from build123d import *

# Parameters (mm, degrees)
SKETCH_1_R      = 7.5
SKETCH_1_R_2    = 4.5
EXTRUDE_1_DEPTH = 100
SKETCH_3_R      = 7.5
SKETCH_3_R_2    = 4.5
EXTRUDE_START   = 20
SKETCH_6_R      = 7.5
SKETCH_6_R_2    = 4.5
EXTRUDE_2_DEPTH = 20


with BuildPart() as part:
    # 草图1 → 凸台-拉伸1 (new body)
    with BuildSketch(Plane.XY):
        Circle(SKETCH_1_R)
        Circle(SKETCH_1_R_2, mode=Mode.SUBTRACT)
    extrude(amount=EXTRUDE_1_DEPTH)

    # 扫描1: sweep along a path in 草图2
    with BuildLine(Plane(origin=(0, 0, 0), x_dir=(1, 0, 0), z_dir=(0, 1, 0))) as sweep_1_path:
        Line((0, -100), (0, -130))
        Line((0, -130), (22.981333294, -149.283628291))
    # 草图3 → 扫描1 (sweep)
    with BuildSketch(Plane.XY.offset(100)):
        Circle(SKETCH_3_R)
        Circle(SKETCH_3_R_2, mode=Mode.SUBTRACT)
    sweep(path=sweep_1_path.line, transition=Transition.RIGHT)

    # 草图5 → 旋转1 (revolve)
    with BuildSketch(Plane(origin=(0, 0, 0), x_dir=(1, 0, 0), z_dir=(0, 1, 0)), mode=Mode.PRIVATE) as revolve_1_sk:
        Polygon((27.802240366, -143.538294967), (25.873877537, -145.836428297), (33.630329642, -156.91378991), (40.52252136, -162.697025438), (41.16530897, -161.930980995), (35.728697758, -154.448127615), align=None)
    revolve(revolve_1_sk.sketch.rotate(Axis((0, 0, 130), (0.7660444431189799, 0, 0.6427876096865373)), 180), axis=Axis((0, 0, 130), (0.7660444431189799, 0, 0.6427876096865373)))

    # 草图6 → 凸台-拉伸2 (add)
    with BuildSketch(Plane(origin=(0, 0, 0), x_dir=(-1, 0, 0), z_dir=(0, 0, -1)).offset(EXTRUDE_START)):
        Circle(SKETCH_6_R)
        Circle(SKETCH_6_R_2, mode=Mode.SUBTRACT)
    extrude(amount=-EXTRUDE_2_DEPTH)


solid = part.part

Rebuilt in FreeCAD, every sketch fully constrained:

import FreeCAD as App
import Part
import Sketcher

V = App.Vector
Q = App.Units.Quantity


def add_polygon(sketch, points):
    """Adds a closed chain of lines whose ends are joined by coincident constraints."""
    first, n = sketch.GeometryCount, len(points)
    for a, b in zip(points, points[1:] + points[:1]):
        sketch.addGeometry(Part.LineSegment(App.Vector(*a, 0), App.Vector(*b, 0)), False)
    for i in range(n):
        sketch.addConstraint(Sketcher.Constraint("Coincident", first + i, 2, first + (i + 1) % n, 1))

doc = App.newDocument("Part")
body = doc.addObject("PartDesign::Body", "Body")

# Sketch on XY plane
sketch1 = body.newObject("Sketcher::SketchObject", "Sketch")
sketch1.AttachmentSupport = (doc.getObject("XY_Plane"), [""])
sketch1.MapMode = "FlatFace"
sketch1.addGeometry(Part.Circle(V(0, 0, 0), V(0, 0, 1), 7.5), False)
sketch1.addGeometry(Part.Circle(V(0, 0, 0), V(0, 0, 1), 4.5), False)
sketch1.addConstraint(Sketcher.Constraint("Coincident", 0, 3, -1, 1))
sketch1.addConstraint(Sketcher.Constraint("Coincident", 1, 3, -1, 1))
sketch1.addConstraint(Sketcher.Constraint("Diameter", 0, 15.0))
sketch1.addConstraint(Sketcher.Constraint("Diameter", 1, 9.0))
pad1 = body.newObject("PartDesign::Pad", "Pad")
pad1.Profile = sketch1
pad1.Length = 100

# Sketch on XY plane
sketch2 = body.newObject("Sketcher::SketchObject", "Sketch001")
sketch2.AttachmentSupport = (doc.getObject("XY_Plane"), [""])
sketch2.MapMode = "FlatFace"
sketch2.AttachmentOffset = App.Placement(V(0, 0, 100), App.Rotation())
sketch2.addGeometry(Part.Circle(V(0, 0, 0), V(0, 0, 1), 7.5), False)
sketch2.addGeometry(Part.Circle(V(0, 0, 0), V(0, 0, 1), 4.5), False)
sketch2.addConstraint(Sketcher.Constraint("Coincident", 0, 3, -1, 1))
sketch2.addConstraint(Sketcher.Constraint("Coincident", 1, 3, -1, 1))
sketch2.addConstraint(Sketcher.Constraint("Diameter", 0, 15.0))
sketch2.addConstraint(Sketcher.Constraint("Diameter", 1, 9.0))

# Sketch on XZ plane
sketch3 = body.newObject("Sketcher::SketchObject", "Sketch002")
sketch3.AttachmentSupport = (doc.getObject("XZ_Plane"), [""])
sketch3.MapMode = "FlatFace"
sketch3.addGeometry(Part.LineSegment(V(0, 100, 0), V(0, 130, 0)), False)
sketch3.addGeometry(Part.LineSegment(V(0, 130, 0), V(23, 149, 0)), False)
sketch3.addConstraint(Sketcher.Constraint("Coincident", 0, 2, 1, 1))
sketch3.addConstraint(Sketcher.Constraint("Vertical", 0))
sketch3.addConstraint(Sketcher.Constraint("PointOnObject", 0, 1, -2))
sketch3.addConstraint(Sketcher.Constraint("DistanceY", 0, 1, 0, 2, 30.0))
sketch3.addConstraint(Sketcher.Constraint("Angle", 1, Q("40 deg")))
sketch3.addConstraint(Sketcher.Constraint("Distance", 1, 30.0))
sketch3.addConstraint(Sketcher.Constraint("DistanceY", -1, 1, 0, 1, 100.0))
doc.recompute()

additivepipe = body.newObject("PartDesign::AdditivePipe", "AdditivePipe")
additivepipe.Profile = sketch2
additivepipe.Spine = (sketch3, ["Edge1", "Edge2"])
additivepipe.Transition = "Right corner"

# Sketch on XZ plane
sketch4 = body.newObject("Sketcher::SketchObject", "Sketch003")
sketch4.AttachmentSupport = (doc.getObject("XZ_Plane"), [""])
sketch4.MapMode = "FlatFace"
add_polygon(sketch4, [(27.8, 143.5), (25.9, 145.8), (33.6, 156.9), (40.5, 162.7), (41.2, 161.9), (35.7, 154.4)])  # lines 0-5
sketch4.addGeometry(Part.LineSegment(V(23, 149.3, 0), V(39.9, 163.5, 0)), True)  # axis
sketch4.addConstraint(Sketcher.Constraint("Perpendicular", 0, 2))
sketch4.addConstraint(Sketcher.Constraint("Perpendicular", 2, 3))
sketch4.addConstraint(Sketcher.Constraint("Parallel", 4, 5))
sketch4.addConstraint(Sketcher.Constraint("Perpendicular", 3, 6))
sketch4.addConstraint(Sketcher.Constraint("Angle", 0, Q("130 deg")))
sketch4.addConstraint(Sketcher.Constraint("Angle", 1, Q("55 deg")))
sketch4.addConstraint(Sketcher.Constraint("Angle", 4, Q("-126 deg")))
sketch4.addConstraint(Sketcher.Constraint("Distance", 0, 3.0))
sketch4.addConstraint(Sketcher.Constraint("Distance", 3, 1.0))
sketch4.addConstraint(Sketcher.Constraint("DistanceY", 0, 2, 4, 2, 8.611699))
sketch4.addConstraint(Sketcher.Constraint("DistanceY", 0, 2, 6, 1, 3.4472))
sketch4.addConstraint(Sketcher.Constraint("DistanceX", 6, 1, 6, 2, 16.8984))
sketch4.addConstraint(Sketcher.Constraint("Distance", 1, 13.522962))
sketch4.addConstraint(Sketcher.Constraint("DistanceY", -1, 1, 0, 2, 145.836428))
sketch4.addConstraint(Sketcher.Constraint("DistanceX", -1, 1, 1, 2, 33.63033))
sketch4.addConstraint(Sketcher.Constraint("DistanceX", 6, 1, 2, 2, 17.541188))
revolution = body.newObject("PartDesign::Revolution", "Revolution")
revolution.Profile = sketch4
revolution.ReferenceAxis = (sketch4, ["Axis0"])
revolution.Angle = 360

# Sketch on XY plane
sketch5 = body.newObject("Sketcher::SketchObject", "Sketch004")
sketch5.AttachmentSupport = (doc.getObject("XY_Plane"), [""])
sketch5.MapMode = "FlatFace"
sketch5.AttachmentOffset = App.Placement(V(0, 0, -20), App.Rotation())
sketch5.addGeometry(Part.Circle(V(0, 0, 0), V(0, 0, 1), 7.5), False)
sketch5.addGeometry(Part.Circle(V(0, 0, 0), V(0, 0, 1), 4.5), False)
sketch5.addConstraint(Sketcher.Constraint("Coincident", 0, 3, -1, 1))
sketch5.addConstraint(Sketcher.Constraint("Coincident", 1, 3, -1, 1))
sketch5.addConstraint(Sketcher.Constraint("Diameter", 0, 15.0))
sketch5.addConstraint(Sketcher.Constraint("Diameter", 1, 9.0))
pad2 = body.newObject("PartDesign::Pad", "Pad001")
pad2.Profile = sketch5
pad2.Length = 20

doc.recompute()
